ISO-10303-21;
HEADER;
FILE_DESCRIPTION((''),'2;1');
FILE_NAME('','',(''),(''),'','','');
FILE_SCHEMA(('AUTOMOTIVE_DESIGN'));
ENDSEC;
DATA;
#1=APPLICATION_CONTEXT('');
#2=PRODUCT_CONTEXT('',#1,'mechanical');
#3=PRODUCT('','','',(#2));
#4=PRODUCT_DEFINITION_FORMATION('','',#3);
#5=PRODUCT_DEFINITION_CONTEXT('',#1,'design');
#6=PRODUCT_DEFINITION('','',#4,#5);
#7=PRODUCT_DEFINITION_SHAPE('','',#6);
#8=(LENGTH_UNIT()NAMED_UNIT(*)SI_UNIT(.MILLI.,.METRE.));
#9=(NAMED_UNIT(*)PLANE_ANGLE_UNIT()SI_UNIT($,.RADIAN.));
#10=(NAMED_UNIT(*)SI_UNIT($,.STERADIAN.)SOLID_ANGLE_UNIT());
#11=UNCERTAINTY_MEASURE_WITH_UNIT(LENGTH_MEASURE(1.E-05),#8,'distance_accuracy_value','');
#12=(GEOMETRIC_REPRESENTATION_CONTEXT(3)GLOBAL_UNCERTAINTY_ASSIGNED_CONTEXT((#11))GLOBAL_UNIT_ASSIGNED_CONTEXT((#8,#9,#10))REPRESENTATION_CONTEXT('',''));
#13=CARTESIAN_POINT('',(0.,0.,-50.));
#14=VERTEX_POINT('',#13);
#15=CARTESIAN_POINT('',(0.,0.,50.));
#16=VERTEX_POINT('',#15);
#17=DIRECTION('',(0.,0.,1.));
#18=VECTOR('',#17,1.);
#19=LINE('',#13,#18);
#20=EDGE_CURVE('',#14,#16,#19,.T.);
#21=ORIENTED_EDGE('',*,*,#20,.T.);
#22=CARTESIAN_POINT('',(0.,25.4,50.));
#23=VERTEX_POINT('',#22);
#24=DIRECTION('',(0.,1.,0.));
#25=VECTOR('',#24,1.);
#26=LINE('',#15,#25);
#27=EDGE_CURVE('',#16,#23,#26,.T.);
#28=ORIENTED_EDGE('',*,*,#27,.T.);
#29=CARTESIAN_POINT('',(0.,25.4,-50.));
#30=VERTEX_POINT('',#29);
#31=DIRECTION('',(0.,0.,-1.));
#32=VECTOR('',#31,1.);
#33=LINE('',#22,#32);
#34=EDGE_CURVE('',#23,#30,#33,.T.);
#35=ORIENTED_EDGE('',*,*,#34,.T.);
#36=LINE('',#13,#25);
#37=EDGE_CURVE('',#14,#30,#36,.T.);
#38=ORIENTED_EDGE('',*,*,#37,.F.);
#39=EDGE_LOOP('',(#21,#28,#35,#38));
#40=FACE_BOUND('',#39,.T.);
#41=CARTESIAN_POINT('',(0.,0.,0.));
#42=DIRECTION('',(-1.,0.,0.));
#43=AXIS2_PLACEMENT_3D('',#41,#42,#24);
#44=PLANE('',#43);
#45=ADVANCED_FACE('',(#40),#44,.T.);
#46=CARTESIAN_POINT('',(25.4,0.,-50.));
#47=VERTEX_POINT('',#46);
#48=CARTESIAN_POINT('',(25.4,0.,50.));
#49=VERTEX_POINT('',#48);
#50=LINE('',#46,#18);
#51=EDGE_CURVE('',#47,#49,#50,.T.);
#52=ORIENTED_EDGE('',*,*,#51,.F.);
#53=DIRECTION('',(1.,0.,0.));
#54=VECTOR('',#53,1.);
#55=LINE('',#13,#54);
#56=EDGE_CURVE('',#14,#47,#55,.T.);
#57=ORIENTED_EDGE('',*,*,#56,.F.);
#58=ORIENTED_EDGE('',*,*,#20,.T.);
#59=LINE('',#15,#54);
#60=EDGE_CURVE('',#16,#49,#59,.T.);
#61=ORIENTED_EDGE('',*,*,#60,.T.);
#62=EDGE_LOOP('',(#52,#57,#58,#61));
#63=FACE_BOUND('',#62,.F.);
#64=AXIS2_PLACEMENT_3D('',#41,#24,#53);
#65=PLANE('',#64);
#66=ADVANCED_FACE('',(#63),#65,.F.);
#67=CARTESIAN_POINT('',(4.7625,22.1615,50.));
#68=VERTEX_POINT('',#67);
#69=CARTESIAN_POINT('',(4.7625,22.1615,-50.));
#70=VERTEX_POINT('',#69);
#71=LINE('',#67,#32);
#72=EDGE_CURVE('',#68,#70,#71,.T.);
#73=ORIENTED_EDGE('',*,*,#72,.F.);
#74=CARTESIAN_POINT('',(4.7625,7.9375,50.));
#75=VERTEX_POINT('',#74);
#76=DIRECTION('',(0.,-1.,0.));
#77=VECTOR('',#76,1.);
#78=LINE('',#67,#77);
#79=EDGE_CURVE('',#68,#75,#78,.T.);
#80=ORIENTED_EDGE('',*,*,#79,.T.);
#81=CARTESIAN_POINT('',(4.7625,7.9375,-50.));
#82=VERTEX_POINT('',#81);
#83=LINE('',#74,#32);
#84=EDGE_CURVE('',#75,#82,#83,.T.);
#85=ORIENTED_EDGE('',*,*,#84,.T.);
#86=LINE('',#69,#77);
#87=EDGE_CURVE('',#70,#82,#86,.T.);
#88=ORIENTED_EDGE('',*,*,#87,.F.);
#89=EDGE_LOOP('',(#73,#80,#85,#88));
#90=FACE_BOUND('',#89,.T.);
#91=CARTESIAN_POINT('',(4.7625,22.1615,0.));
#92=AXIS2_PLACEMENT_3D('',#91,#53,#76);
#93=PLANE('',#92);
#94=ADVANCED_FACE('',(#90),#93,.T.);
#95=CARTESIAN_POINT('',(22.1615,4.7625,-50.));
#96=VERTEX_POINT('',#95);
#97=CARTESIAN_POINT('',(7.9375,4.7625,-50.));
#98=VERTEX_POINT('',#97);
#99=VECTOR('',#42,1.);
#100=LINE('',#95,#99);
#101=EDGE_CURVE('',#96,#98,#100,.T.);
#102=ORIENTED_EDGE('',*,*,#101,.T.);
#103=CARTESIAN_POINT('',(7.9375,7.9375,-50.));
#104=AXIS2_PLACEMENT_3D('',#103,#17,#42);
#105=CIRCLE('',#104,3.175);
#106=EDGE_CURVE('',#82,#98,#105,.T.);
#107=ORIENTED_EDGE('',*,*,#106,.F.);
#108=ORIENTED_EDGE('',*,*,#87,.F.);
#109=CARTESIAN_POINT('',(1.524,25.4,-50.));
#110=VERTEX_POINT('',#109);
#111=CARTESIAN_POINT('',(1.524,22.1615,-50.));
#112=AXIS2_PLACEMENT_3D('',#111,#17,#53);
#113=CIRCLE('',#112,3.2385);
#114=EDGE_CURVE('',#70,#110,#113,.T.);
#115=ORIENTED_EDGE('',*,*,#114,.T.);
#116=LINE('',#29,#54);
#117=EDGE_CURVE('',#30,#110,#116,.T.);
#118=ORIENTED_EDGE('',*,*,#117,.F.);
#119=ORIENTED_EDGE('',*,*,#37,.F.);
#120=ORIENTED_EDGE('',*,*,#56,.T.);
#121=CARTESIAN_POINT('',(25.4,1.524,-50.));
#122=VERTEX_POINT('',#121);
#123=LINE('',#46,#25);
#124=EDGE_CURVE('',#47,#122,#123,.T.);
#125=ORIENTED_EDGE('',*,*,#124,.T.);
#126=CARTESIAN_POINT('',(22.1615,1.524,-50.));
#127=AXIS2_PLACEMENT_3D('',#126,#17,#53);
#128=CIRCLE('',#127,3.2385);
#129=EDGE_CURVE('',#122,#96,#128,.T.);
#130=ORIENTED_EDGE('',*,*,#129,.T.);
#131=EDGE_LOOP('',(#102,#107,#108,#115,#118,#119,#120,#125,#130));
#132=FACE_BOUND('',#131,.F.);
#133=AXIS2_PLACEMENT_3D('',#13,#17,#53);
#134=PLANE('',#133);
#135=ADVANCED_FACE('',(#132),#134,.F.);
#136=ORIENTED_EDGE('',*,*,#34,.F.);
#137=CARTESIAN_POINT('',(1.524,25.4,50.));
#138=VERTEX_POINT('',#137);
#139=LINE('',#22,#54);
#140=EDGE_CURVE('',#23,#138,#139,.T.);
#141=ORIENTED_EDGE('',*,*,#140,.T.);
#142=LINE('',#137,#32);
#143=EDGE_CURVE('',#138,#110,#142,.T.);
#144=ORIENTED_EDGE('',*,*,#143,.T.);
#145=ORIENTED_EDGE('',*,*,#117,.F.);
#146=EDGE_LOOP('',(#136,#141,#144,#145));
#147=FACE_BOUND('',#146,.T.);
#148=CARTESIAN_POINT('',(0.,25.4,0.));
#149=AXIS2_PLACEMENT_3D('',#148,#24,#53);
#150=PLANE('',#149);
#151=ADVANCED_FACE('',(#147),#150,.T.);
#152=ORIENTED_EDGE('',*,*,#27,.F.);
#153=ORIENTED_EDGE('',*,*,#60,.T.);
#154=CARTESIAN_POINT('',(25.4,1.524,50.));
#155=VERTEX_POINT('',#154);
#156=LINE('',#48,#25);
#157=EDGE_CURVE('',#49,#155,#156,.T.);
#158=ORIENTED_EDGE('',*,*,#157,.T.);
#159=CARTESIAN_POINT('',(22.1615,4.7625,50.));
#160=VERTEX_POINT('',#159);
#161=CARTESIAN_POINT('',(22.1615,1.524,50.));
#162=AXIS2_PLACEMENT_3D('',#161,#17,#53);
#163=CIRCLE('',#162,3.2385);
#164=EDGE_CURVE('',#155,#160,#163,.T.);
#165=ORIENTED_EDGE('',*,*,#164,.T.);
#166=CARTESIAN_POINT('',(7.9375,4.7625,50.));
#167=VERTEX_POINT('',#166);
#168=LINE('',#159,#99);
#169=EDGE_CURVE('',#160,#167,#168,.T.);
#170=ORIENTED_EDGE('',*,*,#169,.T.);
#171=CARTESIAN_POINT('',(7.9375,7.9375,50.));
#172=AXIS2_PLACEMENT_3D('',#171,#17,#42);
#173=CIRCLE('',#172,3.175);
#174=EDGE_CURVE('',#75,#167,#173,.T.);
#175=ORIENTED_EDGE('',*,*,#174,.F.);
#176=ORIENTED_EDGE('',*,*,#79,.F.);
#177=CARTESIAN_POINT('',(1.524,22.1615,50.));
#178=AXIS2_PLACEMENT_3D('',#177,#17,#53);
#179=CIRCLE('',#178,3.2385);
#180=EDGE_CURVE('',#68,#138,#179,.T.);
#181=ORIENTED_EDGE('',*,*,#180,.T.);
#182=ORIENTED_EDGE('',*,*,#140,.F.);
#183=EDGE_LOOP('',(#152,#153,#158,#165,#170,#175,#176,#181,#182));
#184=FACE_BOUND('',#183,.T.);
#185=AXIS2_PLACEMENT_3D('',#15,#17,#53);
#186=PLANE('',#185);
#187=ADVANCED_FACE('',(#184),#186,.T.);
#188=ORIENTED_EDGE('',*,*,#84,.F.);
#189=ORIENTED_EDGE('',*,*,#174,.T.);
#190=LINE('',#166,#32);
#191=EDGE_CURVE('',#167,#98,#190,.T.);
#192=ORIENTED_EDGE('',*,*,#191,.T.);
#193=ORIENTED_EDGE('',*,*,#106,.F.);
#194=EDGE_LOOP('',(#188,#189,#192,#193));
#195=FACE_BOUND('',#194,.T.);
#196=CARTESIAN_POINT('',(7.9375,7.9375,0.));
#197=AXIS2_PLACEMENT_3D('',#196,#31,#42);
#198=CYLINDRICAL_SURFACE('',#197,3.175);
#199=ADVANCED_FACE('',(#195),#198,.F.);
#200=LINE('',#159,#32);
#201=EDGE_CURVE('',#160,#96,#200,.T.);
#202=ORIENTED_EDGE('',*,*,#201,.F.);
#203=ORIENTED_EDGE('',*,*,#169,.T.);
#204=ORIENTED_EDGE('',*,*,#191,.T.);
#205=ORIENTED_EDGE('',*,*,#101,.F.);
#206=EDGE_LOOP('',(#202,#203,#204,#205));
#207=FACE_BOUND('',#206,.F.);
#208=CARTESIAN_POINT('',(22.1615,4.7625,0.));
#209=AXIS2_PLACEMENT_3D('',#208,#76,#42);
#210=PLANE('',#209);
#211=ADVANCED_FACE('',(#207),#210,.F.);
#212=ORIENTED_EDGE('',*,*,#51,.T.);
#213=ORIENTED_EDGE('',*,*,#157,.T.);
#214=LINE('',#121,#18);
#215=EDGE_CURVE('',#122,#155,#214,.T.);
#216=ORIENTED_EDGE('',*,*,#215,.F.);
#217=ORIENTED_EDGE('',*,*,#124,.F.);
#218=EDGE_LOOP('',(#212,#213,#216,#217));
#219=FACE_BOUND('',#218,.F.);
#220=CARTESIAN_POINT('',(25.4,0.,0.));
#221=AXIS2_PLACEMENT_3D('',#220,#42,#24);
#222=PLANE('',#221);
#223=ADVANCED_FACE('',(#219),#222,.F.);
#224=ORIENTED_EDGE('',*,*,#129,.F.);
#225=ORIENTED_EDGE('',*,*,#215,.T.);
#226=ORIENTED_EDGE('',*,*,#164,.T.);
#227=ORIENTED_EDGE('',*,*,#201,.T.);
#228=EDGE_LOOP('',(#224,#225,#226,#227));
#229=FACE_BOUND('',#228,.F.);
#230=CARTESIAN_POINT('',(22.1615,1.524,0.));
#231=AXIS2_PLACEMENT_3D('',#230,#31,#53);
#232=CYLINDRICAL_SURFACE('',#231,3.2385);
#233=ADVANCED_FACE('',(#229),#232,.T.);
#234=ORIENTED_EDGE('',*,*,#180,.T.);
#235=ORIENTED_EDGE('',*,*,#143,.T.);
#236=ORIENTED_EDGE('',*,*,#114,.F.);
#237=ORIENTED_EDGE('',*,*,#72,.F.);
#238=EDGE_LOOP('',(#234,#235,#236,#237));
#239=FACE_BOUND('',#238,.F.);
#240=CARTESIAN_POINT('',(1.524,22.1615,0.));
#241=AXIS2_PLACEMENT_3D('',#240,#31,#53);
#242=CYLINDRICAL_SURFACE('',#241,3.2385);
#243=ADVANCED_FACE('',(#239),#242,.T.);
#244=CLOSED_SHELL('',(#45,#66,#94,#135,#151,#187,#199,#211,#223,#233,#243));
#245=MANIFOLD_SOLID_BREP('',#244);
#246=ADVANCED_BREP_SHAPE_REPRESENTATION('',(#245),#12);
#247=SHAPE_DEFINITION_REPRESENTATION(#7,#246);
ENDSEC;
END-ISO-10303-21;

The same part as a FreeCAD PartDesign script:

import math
import FreeCAD as App
import Part
import Sketcher

V = App.Vector
Q = App.Units.Quantity

doc = App.newDocument("Part")
body = doc.addObject("PartDesign::Body", "Body")

sketch1 = doc.addObject("Sketcher::SketchObject", "Sketch")
body.addObject(sketch1)
sketch1.AttachmentSupport = (doc.XY_Plane, [""])
sketch1.MapMode = "FlatFace"
sketch1.addGeometry([
    Part.LineSegment(V(0, 25.4, 0), V(0, 0, 0)),
    Part.LineSegment(V(0, 0, 0), V(25.4, 0, 0)),
    Part.LineSegment(V(25.4, 0, 0), V(25.4, 1.5, 0)),
    Part.ArcOfCircle(Part.Circle(V(22.2, 1.5, 0), V(0, 0, 1), 3.2), math.radians(0), math.radians(90)),
    Part.LineSegment(V(22.2, 4.8, 0), V(7.9, 4.8, 0)),
    Part.ArcOfCircle(Part.Circle(V(7.9, 7.9, 0), V(0, 0, 1), 3.2), math.radians(180), math.radians(270)),
    Part.LineSegment(V(4.8, 7.9, 0), V(4.8, 22.2, 0)),
    Part.ArcOfCircle(Part.Circle(V(1.5, 22.2, 0), V(0, 0, 1), 3.2), math.radians(0), math.radians(90)),
    Part.LineSegment(V(1.5, 25.4, 0), V(0, 25.4, 0)),
], False)
sketch1.addConstraint([
    Sketcher.Constraint("Coincident", 0, 2, 1, 1),
    Sketcher.Constraint("Coincident", 1, 2, 2, 1),
    Sketcher.Constraint("Tangent", 2, 2, 3, 1),
    Sketcher.Constraint("Tangent", 3, 2, 4, 1),
    Sketcher.Constraint("Tangent", 4, 2, 5, 2),
    Sketcher.Constraint("Tangent", 5, 1, 6, 1),
    Sketcher.Constraint("Tangent", 6, 2, 7, 1),
    Sketcher.Constraint("Tangent", 7, 2, 8, 1),
    Sketcher.Constraint("Coincident", 8, 2, 0, 1),
    Sketcher.Constraint("Vertical", 0),
    Sketcher.Constraint("Horizontal", 1),
    Sketcher.Constraint("Vertical", 2),
    Sketcher.Constraint("Horizontal", 4),
    Sketcher.Constraint("Vertical", 6),
    Sketcher.Constraint("Horizontal", 8),
    Sketcher.Constraint("Coincident", 0, 2, -1, 1),
    Sketcher.Constraint("Equal", 3, 7),
    Sketcher.Constraint("Equal", 1, 0),
    Sketcher.Constraint("Equal", 8, 2),
    Sketcher.Constraint("DistanceX", 1, 1, 1, 2, Q("1 in")),
    Sketcher.Constraint("Radius", 5, Q("0.125 in")),
    Sketcher.Constraint("Radius", 3, Q("0.1275 in")),
    Sketcher.Constraint("DistanceY", -1, 1, 3, 2, Q("0.1875 in")),
])
pad1 = doc.addObject("PartDesign::Pad", "Pad")
body.addObject(pad1)
pad1.Profile = sketch1
pad1.Length = Q("3.9370079 in")
pad1.Midplane = True

doc.recompute()
